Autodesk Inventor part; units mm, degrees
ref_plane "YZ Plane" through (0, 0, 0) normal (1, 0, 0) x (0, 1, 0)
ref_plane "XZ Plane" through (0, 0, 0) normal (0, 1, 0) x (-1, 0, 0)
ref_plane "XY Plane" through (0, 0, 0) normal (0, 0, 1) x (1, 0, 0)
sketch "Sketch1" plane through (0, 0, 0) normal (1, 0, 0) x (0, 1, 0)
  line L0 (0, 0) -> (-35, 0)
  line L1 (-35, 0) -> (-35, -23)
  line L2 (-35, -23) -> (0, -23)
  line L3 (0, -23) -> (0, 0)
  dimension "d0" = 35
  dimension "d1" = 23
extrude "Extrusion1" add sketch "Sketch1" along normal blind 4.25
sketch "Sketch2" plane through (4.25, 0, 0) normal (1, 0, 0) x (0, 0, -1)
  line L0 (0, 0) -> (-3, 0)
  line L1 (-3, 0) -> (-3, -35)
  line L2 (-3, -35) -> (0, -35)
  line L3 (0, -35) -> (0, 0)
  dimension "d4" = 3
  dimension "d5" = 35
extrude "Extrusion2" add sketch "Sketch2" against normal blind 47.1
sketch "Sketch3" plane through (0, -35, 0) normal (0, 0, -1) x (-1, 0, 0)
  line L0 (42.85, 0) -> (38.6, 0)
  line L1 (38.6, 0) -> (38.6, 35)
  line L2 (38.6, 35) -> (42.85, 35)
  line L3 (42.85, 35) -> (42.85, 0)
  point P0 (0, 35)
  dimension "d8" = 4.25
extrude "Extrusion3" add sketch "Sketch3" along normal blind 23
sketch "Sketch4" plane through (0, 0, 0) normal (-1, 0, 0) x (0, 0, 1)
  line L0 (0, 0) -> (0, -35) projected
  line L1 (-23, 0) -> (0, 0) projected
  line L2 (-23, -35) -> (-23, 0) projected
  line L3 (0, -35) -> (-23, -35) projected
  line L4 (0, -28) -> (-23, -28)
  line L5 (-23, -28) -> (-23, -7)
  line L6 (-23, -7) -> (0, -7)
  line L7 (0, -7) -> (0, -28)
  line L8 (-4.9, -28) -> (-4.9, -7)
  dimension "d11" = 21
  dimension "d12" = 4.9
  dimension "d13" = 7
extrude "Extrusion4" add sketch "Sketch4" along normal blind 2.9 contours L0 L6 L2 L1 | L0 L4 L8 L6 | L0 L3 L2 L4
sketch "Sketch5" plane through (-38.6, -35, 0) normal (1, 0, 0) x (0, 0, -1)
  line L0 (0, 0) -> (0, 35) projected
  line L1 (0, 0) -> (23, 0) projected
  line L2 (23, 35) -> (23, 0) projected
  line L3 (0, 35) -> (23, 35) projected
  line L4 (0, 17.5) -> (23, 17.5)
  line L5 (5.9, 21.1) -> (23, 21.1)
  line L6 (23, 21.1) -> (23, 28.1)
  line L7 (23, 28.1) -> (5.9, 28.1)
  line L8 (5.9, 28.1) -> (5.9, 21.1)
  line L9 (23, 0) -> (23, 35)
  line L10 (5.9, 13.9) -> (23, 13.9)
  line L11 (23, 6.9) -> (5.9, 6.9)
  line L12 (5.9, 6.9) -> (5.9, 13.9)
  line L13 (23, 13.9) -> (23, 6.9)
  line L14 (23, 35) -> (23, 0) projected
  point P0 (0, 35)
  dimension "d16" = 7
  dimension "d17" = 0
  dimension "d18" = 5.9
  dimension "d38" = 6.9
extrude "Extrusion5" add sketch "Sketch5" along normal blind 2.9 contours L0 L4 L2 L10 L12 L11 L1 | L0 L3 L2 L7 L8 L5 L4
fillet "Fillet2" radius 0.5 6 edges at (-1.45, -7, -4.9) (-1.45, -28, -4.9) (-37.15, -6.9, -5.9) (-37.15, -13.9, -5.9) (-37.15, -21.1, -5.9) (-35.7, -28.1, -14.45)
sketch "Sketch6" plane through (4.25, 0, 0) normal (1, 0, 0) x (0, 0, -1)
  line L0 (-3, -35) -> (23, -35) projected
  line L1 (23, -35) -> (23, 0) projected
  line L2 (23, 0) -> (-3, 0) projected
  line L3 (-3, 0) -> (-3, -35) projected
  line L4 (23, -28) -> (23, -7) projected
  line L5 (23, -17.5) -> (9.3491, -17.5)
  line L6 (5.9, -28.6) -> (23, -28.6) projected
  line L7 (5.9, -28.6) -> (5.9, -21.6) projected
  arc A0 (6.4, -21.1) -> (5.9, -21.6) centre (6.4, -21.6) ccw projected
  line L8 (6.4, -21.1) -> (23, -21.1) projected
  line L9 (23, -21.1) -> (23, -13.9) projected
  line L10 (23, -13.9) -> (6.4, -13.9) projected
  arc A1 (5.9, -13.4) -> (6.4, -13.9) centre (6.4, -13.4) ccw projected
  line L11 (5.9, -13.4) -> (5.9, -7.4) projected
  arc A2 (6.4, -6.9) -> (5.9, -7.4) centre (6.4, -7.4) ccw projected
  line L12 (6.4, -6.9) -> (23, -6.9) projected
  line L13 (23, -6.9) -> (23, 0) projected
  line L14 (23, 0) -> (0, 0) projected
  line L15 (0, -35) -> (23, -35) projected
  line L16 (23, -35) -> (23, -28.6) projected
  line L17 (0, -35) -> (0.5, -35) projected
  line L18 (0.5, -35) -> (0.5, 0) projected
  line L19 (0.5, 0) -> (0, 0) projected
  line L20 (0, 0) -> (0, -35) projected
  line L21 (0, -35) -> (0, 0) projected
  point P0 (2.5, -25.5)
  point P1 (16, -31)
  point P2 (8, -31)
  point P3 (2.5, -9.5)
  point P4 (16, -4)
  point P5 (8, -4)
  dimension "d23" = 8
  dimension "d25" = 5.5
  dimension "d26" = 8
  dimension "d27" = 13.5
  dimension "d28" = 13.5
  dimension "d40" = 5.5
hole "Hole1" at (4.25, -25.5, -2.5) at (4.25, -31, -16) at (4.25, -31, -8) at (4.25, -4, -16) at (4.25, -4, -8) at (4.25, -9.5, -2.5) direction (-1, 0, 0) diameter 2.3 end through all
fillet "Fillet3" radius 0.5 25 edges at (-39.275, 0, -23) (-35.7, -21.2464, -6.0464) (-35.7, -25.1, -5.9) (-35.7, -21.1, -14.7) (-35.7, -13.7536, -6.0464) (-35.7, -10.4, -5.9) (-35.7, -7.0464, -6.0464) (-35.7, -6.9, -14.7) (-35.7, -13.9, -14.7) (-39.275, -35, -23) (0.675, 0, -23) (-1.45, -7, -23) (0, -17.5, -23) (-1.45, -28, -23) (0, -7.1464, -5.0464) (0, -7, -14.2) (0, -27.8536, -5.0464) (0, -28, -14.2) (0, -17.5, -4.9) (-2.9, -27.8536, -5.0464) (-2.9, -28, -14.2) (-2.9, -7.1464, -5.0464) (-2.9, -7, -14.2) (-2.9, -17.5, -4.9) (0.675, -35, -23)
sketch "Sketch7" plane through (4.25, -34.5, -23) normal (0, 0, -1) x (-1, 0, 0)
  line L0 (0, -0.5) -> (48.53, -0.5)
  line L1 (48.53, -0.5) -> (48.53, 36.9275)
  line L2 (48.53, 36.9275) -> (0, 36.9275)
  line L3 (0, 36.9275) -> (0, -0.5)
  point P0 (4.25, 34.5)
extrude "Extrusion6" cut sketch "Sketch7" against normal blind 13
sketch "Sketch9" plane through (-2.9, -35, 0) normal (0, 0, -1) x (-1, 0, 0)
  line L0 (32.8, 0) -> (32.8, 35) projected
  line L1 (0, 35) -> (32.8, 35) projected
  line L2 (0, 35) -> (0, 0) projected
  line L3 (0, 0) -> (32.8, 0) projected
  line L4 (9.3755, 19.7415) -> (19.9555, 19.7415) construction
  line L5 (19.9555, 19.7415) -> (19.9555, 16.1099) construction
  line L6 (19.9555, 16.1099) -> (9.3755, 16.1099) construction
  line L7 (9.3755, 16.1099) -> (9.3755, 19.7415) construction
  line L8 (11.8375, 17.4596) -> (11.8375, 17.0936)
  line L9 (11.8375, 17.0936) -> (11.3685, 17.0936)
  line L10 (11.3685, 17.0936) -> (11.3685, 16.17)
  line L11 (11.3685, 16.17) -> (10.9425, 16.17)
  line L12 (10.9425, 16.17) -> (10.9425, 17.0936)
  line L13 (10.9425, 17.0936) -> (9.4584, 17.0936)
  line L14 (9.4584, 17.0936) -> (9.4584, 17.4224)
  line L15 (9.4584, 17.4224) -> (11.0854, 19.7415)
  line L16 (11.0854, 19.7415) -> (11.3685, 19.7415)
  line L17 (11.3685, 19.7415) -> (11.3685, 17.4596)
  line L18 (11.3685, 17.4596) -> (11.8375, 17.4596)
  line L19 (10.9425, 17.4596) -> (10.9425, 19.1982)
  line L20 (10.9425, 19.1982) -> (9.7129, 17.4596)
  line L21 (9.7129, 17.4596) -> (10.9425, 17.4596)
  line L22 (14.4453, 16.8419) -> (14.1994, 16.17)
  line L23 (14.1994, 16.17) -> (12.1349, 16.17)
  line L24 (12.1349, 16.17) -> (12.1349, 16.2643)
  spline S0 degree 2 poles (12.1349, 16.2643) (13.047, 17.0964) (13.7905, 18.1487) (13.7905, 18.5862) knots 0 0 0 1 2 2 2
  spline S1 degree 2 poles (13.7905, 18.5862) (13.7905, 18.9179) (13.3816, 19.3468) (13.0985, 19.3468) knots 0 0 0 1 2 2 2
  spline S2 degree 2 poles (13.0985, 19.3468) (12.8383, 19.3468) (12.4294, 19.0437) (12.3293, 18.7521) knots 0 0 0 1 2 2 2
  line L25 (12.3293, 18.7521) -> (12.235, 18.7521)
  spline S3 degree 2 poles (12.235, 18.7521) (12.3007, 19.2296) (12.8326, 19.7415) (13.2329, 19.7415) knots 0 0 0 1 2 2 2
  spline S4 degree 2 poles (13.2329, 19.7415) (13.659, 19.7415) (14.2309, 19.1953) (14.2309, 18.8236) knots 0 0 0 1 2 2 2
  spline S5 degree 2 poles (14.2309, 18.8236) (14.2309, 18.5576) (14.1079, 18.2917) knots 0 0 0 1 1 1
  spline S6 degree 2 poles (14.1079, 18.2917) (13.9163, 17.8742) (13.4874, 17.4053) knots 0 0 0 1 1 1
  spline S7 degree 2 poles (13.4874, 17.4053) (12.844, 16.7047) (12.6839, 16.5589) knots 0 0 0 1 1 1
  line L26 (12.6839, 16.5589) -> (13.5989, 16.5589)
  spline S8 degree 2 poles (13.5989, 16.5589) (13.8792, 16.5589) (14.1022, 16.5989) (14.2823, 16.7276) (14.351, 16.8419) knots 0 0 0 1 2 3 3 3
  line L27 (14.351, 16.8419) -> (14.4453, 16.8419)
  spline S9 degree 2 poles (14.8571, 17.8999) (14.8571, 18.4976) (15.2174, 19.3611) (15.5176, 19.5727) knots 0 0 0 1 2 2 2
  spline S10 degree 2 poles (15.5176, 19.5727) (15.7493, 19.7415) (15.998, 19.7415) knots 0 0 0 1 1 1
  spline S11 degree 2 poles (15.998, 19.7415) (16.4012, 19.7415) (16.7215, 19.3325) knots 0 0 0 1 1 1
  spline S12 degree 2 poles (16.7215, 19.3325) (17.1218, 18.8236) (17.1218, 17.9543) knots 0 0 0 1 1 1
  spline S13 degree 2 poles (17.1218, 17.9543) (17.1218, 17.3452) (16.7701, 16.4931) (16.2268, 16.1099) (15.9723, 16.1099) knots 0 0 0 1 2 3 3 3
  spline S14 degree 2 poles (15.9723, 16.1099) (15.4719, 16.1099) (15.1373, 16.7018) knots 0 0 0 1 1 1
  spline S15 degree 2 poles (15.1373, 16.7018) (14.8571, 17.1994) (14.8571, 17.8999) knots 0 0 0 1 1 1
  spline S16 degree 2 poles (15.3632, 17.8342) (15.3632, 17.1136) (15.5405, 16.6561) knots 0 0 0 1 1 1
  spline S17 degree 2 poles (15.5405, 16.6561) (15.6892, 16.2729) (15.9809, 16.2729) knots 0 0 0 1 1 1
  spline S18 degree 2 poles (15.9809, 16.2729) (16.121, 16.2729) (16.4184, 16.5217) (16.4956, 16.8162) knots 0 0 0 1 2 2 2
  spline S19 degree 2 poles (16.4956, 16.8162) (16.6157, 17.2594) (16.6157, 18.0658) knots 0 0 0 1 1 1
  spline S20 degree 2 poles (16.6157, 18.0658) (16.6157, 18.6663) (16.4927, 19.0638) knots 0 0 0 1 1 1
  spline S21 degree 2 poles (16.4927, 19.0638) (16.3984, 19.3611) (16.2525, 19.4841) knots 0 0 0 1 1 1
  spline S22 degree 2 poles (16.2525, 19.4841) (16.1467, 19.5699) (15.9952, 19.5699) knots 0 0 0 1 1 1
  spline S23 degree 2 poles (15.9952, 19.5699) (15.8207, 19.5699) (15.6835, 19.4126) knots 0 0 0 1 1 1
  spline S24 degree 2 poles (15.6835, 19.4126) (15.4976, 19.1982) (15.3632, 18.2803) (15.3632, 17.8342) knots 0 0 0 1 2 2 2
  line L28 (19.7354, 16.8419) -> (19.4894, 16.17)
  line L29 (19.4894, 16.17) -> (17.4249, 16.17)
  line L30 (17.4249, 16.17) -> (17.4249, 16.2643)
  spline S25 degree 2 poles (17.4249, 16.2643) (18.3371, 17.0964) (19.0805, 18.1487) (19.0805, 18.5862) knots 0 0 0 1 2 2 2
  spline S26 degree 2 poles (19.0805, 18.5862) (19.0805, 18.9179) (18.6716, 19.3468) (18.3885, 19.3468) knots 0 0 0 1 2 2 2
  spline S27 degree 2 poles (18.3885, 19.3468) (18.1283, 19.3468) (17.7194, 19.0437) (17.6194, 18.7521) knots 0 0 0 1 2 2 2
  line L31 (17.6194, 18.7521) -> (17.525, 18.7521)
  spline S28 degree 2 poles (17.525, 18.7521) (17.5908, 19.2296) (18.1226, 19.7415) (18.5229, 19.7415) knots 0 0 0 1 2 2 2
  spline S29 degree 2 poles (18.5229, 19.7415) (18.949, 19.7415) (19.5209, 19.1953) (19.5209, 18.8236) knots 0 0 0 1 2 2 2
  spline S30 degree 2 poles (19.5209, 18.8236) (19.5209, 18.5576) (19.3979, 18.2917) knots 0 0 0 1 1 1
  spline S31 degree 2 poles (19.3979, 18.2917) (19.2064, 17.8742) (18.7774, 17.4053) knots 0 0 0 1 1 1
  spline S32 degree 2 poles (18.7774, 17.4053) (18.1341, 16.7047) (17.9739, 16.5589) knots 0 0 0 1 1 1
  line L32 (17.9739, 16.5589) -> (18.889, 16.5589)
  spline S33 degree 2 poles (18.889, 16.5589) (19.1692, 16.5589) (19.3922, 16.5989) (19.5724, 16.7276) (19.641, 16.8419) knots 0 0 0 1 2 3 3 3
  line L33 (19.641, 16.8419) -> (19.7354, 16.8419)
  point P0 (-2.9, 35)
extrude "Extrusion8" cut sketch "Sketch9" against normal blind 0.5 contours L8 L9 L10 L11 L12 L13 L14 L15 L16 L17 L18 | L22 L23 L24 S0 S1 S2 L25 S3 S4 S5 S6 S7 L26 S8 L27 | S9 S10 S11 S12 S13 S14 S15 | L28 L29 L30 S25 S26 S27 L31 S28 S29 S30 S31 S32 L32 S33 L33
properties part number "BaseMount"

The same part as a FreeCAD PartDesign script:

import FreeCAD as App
import Part
import Sketcher


def edges_at(feature, points):
    """Names of the edges that pass closest to the given points."""
    edges = feature.Shape.Edges
    near = lambda p: min(range(len(edges)), key=lambda i: edges[i].distToShape(Part.Vertex(*p))[0])
    return sorted({f"Edge{near(p) + 1}" for p in points})

doc = App.newDocument("Part")
body = doc.addObject("PartDesign::Body", "Body")

# Sketch on YZ plane
sketch1 = body.newObject("Sketcher::SketchObject", "Sketch")
sketch1.AttachmentSupport = (doc.getObject("YZ_Plane"), [""])
sketch1.MapMode = "FlatFace"
sketch1.addGeometry(Part.LineSegment(App.Vector(0, -23, 0), App.Vector(0, 0, 0)), False)
sketch1.addGeometry(Part.LineSegment(App.Vector(0, 0, 0), App.Vector(-35, 0, 0)), False)
sketch1.addGeometry(Part.LineSegment(App.Vector(-35, 0, 0), App.Vector(-35, -23, 0)), False)
sketch1.addGeometry(Part.LineSegment(App.Vector(-35, -23, 0), App.Vector(0, -23, 0)), False)
sketch1.addConstraint(Sketcher.Constraint("Coincident", 0, 2, 1, 1))
sketch1.addConstraint(Sketcher.Constraint("Coincident", 1, 2, 2, 1))
sketch1.addConstraint(Sketcher.Constraint("Coincident", 2, 2, 3, 1))
sketch1.addConstraint(Sketcher.Constraint("Coincident", 3, 2, 0, 1))
sketch1.addConstraint(Sketcher.Constraint("Vertical", 0))
sketch1.addConstraint(Sketcher.Constraint("Horizontal", 1))
sketch1.addConstraint(Sketcher.Constraint("Vertical", 2))
sketch1.addConstraint(Sketcher.Constraint("Horizontal", 3))
sketch1.addConstraint(Sketcher.Constraint("Coincident", 0, 2, -1, 1))
sketch1.addConstraint(Sketcher.Constraint("DistanceX", 1, 2, 1, 1, 35.0))
sketch1.addConstraint(Sketcher.Constraint("DistanceY", 0, 1, 0, 2, 23.0))
pad1 = body.newObject("PartDesign::Pad", "Pad")
pad1.Profile = sketch1
pad1.Length = 4.25

# Sketch on YZ plane
sketch2 = body.newObject("Sketcher::SketchObject", "Sketch001")
sketch2.AttachmentSupport = (doc.getObject("YZ_Plane"), [""])
sketch2.MapMode = "FlatFace"
sketch2.AttachmentOffset = App.Placement(App.Vector(0, 0, 4.25), App.Rotation())
sketch2.addGeometry(Part.LineSegment(App.Vector(-35, 0, 0), App.Vector(0, 0, 0)), False)
sketch2.addGeometry(Part.LineSegment(App.Vector(0, 0, 0), App.Vector(0, 3, 0)), False)
sketch2.addGeometry(Part.LineSegment(App.Vector(0, 3, 0), App.Vector(-35, 3, 0)), False)
sketch2.addGeometry(Part.LineSegment(App.Vector(-35, 3, 0), App.Vector(-35, 0, 0)), False)
sketch2.addConstraint(Sketcher.Constraint("Coincident", 0, 2, 1, 1))
sketch2.addConstraint(Sketcher.Constraint("Coincident", 1, 2, 2, 1))
sketch2.addConstraint(Sketcher.Constraint("Coincident", 2, 2, 3, 1))
sketch2.addConstraint(Sketcher.Constraint("Coincident", 3, 2, 0, 1))
sketch2.addConstraint(Sketcher.Constraint("Horizontal", 0))
sketch2.addConstraint(Sketcher.Constraint("Vertical", 1))
sketch2.addConstraint(Sketcher.Constraint("Horizontal", 2))
sketch2.addConstraint(Sketcher.Constraint("Vertical", 3))
sketch2.addConstraint(Sketcher.Constraint("Coincident", 0, 2, -1, 1))
sketch2.addConstraint(Sketcher.Constraint("DistanceX", 0, 1, 0, 2, 35.0))
sketch2.addConstraint(Sketcher.Constraint("DistanceY", 1, 1, 1, 2, 3.0))
pad2 = body.newObject("PartDesign::Pad", "Pad001")
pad2.Profile = sketch2
pad2.Length = 47.1
pad2.Reversed = True

# Sketch on XY plane
sketch3 = body.newObject("Sketcher::SketchObject", "Sketch002")
sketch3.AttachmentSupport = (doc.getObject("XY_Plane"), [""])
sketch3.MapMode = "FlatFace"
sketch3.addGeometry(Part.LineSegment(App.Vector(-38.6, -35, 0), App.Vector(-42.9, -35, 0)), False)
sketch3.addGeometry(Part.LineSegment(App.Vector(-42.9, -35, 0), App.Vector(-42.9, 0, 0)), False)
sketch3.addGeometry(Part.LineSegment(App.Vector(-42.9, 0, 0), App.Vector(-38.6, 0, 0)), False)
sketch3.addGeometry(Part.LineSegment(App.Vector(-38.6, 0, 0), App.Vector(-38.6, -35, 0)), False)
sketch3.addConstraint(Sketcher.Constraint("Coincident", 0, 2, 1, 1))
sketch3.addConstraint(Sketcher.Constraint("Coincident", 1, 2, 2, 1))
sketch3.addConstraint(Sketcher.Constraint("Coincident", 2, 2, 3, 1))
sketch3.addConstraint(Sketcher.Constraint("Coincident", 3, 2, 0, 1))
sketch3.addConstraint(Sketcher.Constraint("Horizontal", 0))
sketch3.addConstraint(Sketcher.Constraint("Vertical", 1))
sketch3.addConstraint(Sketcher.Constraint("Horizontal", 2))
sketch3.addConstraint(Sketcher.Constraint("Vertical", 3))
sketch3.addConstraint(Sketcher.Constraint("PointOnObject", 1, 2, -1))
sketch3.addConstraint(Sketcher.Constraint("DistanceX", 0, 2, 0, 1, 4.25))
sketch3.addConstraint(Sketcher.Constraint("DistanceY", 1, 1, 1, 2, 35.0))
sketch3.addConstraint(Sketcher.Constraint("DistanceX", 2, 2, -1, 1, 38.6))
pad3 = body.newObject("PartDesign::Pad", "Pad002")
pad3.Profile = sketch3
pad3.Length = 23
pad3.Reversed = True

# Sketch on YZ plane
sketch4 = body.newObject("Sketcher::SketchObject", "Sketch003")
sketch4.AttachmentSupport = (doc.getObject("YZ_Plane"), [""])
sketch4.MapMode = "FlatFace"
sketch4.addGeometry(Part.LineSegment(App.Vector(0, 0, 0), App.Vector(0, -23, 0)), False)
sketch4.addGeometry(Part.LineSegment(App.Vector(0, -23, 0), App.Vector(-7, -23, 0)), False)
sketch4.addGeometry(Part.LineSegment(App.Vector(-7, -23, 0), App.Vector(-7, -5, 0)), False)
sketch4.addGeometry(Part.LineSegment(App.Vector(-7, -5, 0), App.Vector(-28, -5, 0)), False)
sketch4.addGeometry(Part.LineSegment(App.Vector(-28, -5, 0), App.Vector(-28, -23, 0)), False)
sketch4.addGeometry(Part.LineSegment(App.Vector(-28, -23, 0), App.Vector(-35, -23, 0)), False)
sketch4.addGeometry(Part.LineSegment(App.Vector(-35, -23, 0), App.Vector(-35, 0, 0)), False)
sketch4.addGeometry(Part.LineSegment(App.Vector(-35, 0, 0), App.Vector(0, 0, 0)), False)
sketch4.addConstraint(Sketcher.Constraint("Coincident", 0, 2, 1, 1))
sketch4.addConstraint(Sketcher.Constraint("Coincident", 1, 2, 2, 1))
sketch4.addConstraint(Sketcher.Constraint("Coincident", 2, 2, 3, 1))
sketch4.addConstraint(Sketcher.Constraint("Coincident", 3, 2, 4, 1))
sketch4.addConstraint(Sketcher.Constraint("Coincident", 4, 2, 5, 1))
sketch4.addConstraint(Sketcher.Constraint("Coincident", 5, 2, 6, 1))
sketch4.addConstraint(Sketcher.Constraint("Coincident", 6, 2, 7, 1))
sketch4.addConstraint(Sketcher.Constraint("Coincident", 7, 2, 0, 1))
sketch4.addConstraint(Sketcher.Constraint("Vertical", 0))
sketch4.addConstraint(Sketcher.Constraint("Horizontal", 1))
sketch4.addConstraint(Sketcher.Constraint("Vertical", 2))
sketch4.addConstraint(Sketcher.Constraint("Horizontal", 3))
sketch4.addConstraint(Sketcher.Constraint("Vertical", 4))
sketch4.addConstraint(Sketcher.Constraint("Horizontal", 5))
sketch4.addConstraint(Sketcher.Constraint("Vertical", 6))
sketch4.addConstraint(Sketcher.Constraint("Horizontal", 7))
sketch4.addConstraint(Sketcher.Constraint("Coincident", 7, 2, -1, 1))
sketch4.addConstraint(Sketcher.Constraint("Horizontal", 1, 2, 4, 2))
sketch4.addConstraint(Sketcher.Constraint("Equal", 1, 5))
sketch4.addConstraint(Sketcher.Constraint("DistanceX", 1, 2, 1, 1, 7.0))
sketch4.addConstraint(Sketcher.Constraint("DistanceX", 3, 2, 3, 1, 21.0))
sketch4.addConstraint(Sketcher.Constraint("DistanceY", 2, 2, -1, 1, 4.9))
sketch4.addConstraint(Sketcher.Constraint("DistanceY", 0, 2, 0, 1, 23.0))
pad4 = body.newObject("PartDesign::Pad", "Pad003")
pad4.Profile = sketch4
pad4.Length = 2.9
pad4.Reversed = True

# Sketch on YZ plane
sketch5 = body.newObject("Sketcher::SketchObject", "Sketch004")
sketch5.AttachmentSupport = (doc.getObject("YZ_Plane"), [""])
sketch5.MapMode = "FlatFace"
sketch5.AttachmentOffset = App.Placement(App.Vector(0, 0, -38.6), App.Rotation())
sketch5.addGeometry(Part.LineSegment(App.Vector(-35, 0, 0), App.Vector(-35, -23, 0)), False)
sketch5.addGeometry(Part.LineSegment(App.Vector(-35, -23, 0), App.Vector(-28, -23, 0)), False)
sketch5.addGeometry(Part.LineSegment(App.Vector(-28, -23, 0), App.Vector(-28, -6, 0)), False)
sketch5.addGeometry(Part.LineSegment(App.Vector(-28, -6, 0), App.Vector(-21, -6, 0)), False)
sketch5.addGeometry(Part.LineSegment(App.Vector(-21, -6, 0), App.Vector(-21, -23, 0)), False)
sketch5.addGeometry(Part.LineSegment(App.Vector(-21, -23, 0), App.Vector(-14, -23, 0)), False)
sketch5.addGeometry(Part.LineSegment(App.Vector(-14, -23, 0), App.Vector(-14, -6, 0)), False)
sketch5.addGeometry(Part.LineSegment(App.Vector(-14, -6, 0), App.Vector(-7, -6, 0)), False)
sketch5.addGeometry(Part.LineSegment(App.Vector(-7, -6, 0), App.Vector(-7, -23, 0)), False)
sketch5.addGeometry(Part.LineSegment(App.Vector(-7, -23, 0), App.Vector(0, -23, 0)), False)
sketch5.addGeometry(Part.LineSegment(App.Vector(0, -23, 0), App.Vector(0, 0, 0)), False)
sketch5.addGeometry(Part.LineSegment(App.Vector(0, 0, 0), App.Vector(-35, 0, 0)), False)
sketch5.addConstraint(Sketcher.Constraint("Coincident", 0, 2, 1, 1))
sketch5.addConstraint(Sketcher.Constraint("Coincident", 1, 2, 2, 1))
sketch5.addConstraint(Sketcher.Constraint("Coincident", 2, 2, 3, 1))
sketch5.addConstraint(Sketcher.Constraint("Coincident", 3, 2, 4, 1))
sketch5.addConstraint(Sketcher.Constraint("Coincident", 4, 2, 5, 1))
sketch5.addConstraint(Sketcher.Constraint("Coincident", 5, 2, 6, 1))
sketch5.addConstraint(Sketcher.Constraint("Coincident", 6, 2, 7, 1))
sketch5.addConstraint(Sketcher.Constraint("Coincident", 7, 2, 8, 1))
sketch5.addConstraint(Sketcher.Constraint("Coincident", 8, 2, 9, 1))
sketch5.addConstraint(Sketcher.Constraint("Coincident", 9, 2, 10, 1))
sketch5.addConstraint(Sketcher.Constraint("Coincident", 10, 2, 11, 1))
sketch5.addConstraint(Sketcher.Constraint("Coincident", 11, 2, 0, 1))
sketch5.addConstraint(Sketcher.Constraint("Vertical", 0))
sketch5.addConstraint(Sketcher.Constraint("Horizontal", 1))
sketch5.addConstraint(Sketcher.Constraint("Vertical", 2))
sketch5.addConstraint(Sketcher.Constraint("Horizontal", 3))
sketch5.addConstraint(Sketcher.Constraint("Vertical", 4))
sketch5.addConstraint(Sketcher.Constraint("Horizontal", 5))
sketch5.addConstraint(Sketcher.Constraint("Vertical", 6))
sketch5.addConstraint(Sketcher.Constraint("Horizontal", 7))
sketch5.addConstraint(Sketcher.Constraint("Vertical", 8))
sketch5.addConstraint(Sketcher.Constraint("Horizontal", 9))
sketch5.addConstraint(Sketcher.Constraint("Vertical", 10))
sketch5.addConstraint(Sketcher.Constraint("Horizontal", 11))
sketch5.addConstraint(Sketcher.Constraint("Coincident", 10, 2, -1, 1))
sketch5.addConstraint(Sketcher.Constraint("Horizontal", 1, 2, 4, 2))
sketch5.addConstraint(Sketcher.Constraint("Horizontal", 3, 2, 6, 2))
sketch5.addConstraint(Sketcher.Constraint("Horizontal", 5, 2, 8, 2))
sketch5.addConstraint(Sketcher.Constraint("Equal", 3, 7))
sketch5.addConstraint(Sketcher.Constraint("Equal", 1, 9))
sketch5.addConstraint(Sketcher.Constraint("DistanceX", 3, 1, 3, 2, 7.0))
sketch5.addConstraint(Sketcher.Constraint("DistanceX", 1, 1, 1, 2, 6.9))
sketch5.addConstraint(Sketcher.Constraint("DistanceY", 2, 2, -1, 1, 5.9))
sketch5.addConstraint(Sketcher.Constraint("DistanceX", 11, 2, 11, 1, 35.0))
sketch5.addConstraint(Sketcher.Constraint("DistanceY", 0, 2, 0, 1, 23.0))
pad5 = body.newObject("PartDesign::Pad", "Pad004")
pad5.Profile = sketch5
pad5.Length = 2.9
doc.recompute()

fillet = body.newObject("PartDesign::Fillet", "Fillet")
fillet.Base = (pad5, edges_at(pad5, [
    (-1.45, -7, -4.9),
    (-1.45, -28, -4.9),
    (-37.15, -6.9, -5.9),
    (-37.15, -13.9, -5.9),
    (-37.15, -21.1, -5.9),
    (-35.7, -28.1, -14.45),
]))
fillet.Radius = 0.5

# Sketch on YZ plane
sketch6 = body.newObject("Sketcher::SketchObject", "Sketch005")
sketch6.AttachmentSupport = (doc.getObject("YZ_Plane"), [""])
sketch6.MapMode = "FlatFace"
sketch6.AttachmentOffset = App.Placement(App.Vector(0, 0, 4.25), App.Rotation())
sketch6.addGeometry(Part.Circle(App.Vector(-25.5, -2.5, 0), App.Vector(0, 0, 1), 1.1), False)
sketch6.addGeometry(Part.Circle(App.Vector(-31, -16, 0), App.Vector(0, 0, 1), 1.1), False)
sketch6.addGeometry(Part.Circle(App.Vector(-31, -8, 0), App.Vector(0, 0, 1), 1.1), False)
sketch6.addGeometry(Part.Circle(App.Vector(-4, -16, 0), App.Vector(0, 0, 1), 1.1), False)
sketch6.addGeometry(Part.Circle(App.Vector(-4, -8, 0), App.Vector(0, 0, 1), 1.1), False)
sketch6.addGeometry(Part.Circle(App.Vector(-9.5, -2.5, 0), App.Vector(0, 0, 1), 1.1), False)
sketch6.addConstraint(Sketcher.Constraint("Equal", 0, 1))
sketch6.addConstraint(Sketcher.Constraint("Equal", 1, 2))
sketch6.addConstraint(Sketcher.Constraint("Equal", 2, 3))
sketch6.addConstraint(Sketcher.Constraint("Equal", 3, 4))
sketch6.addConstraint(Sketcher.Constraint("Equal", 4, 5))
sketch6.addConstraint(Sketcher.Constraint("Horizontal", 1, 3, 3, 3))
sketch6.addConstraint(Sketcher.Constraint("Horizontal", 2, 3, 4, 3))
sketch6.addConstraint(Sketcher.Constraint("Horizontal", 0, 3, 5, 3))
sketch6.addConstraint(Sketcher.Constraint("Vertical", 1, 3, 2, 3))
sketch6.addConstraint(Sketcher.Constraint("Vertical", 3, 3, 4, 3))
sketch6.addConstraint(Sketcher.Constraint("Diameter", 0, 2.3))
sketch6.addConstraint(Sketcher.Constraint("DistanceX", 1, 3, -1, 1, 31.0))
sketch6.addConstraint(Sketcher.Constraint("DistanceY", 1, 3, -1, 1, 16.0))
sketch6.addConstraint(Sketcher.Constraint("DistanceY", 2, 3, -1, 1, 8.0))
sketch6.addConstraint(Sketcher.Constraint("DistanceX", 3, 3, -1, 1, 4.0))
sketch6.addConstraint(Sketcher.Constraint("DistanceX", 0, 3, 5, 3, 16.0))
sketch6.addConstraint(Sketcher.Constraint("DistanceX", 0, 3, -1, 1, 25.5))
sketch6.addConstraint(Sketcher.Constraint("DistanceY", 0, 3, -1, 1, 2.5))
doc.recompute()
hole = body.newObject("PartDesign::Hole", "Hole")
hole.Profile = sketch6
hole.ThreadType = "None"
hole.Diameter = 2.3
hole.DepthType = "ThroughAll"
doc.recompute()

fillet2 = body.newObject("PartDesign::Fillet", "Fillet001")
fillet2.Base = (hole, edges_at(hole, [
    (-39.275, 0, -23),
    (-35.7, -21.246, -6.046),
    (-35.7, -25.1, -5.9),
    (-35.7, -21.1, -14.7),
    (-35.7, -13.754, -6.046),
    (-35.7, -10.4, -5.9),
    (-35.7, -7.046, -6.046),
    (-35.7, -6.9, -14.7),
    (-35.7, -13.9, -14.7),
    (-39.275, -35, -23),
    (0.675, 0, -23),
    (-1.45, -7, -23),
    (0, -17.5, -23),
    (-1.45, -28, -23),
    (0, -7.146, -5.046),
    (0, -7, -14.2),
    (0, -27.854, -5.046),
    (0, -28, -14.2),
    (0, -17.5, -4.9),
    (-2.9, -27.854, -5.046),
    (-2.9, -28, -14.2),
    (-2.9, -7.146, -5.046),
    (-2.9, -7, -14.2),
    (-2.9, -17.5, -4.9),
    (0.675, -35, -23),
]))
fillet2.Radius = 0.5

# Sketch on XY plane
sketch7 = body.newObject("Sketcher::SketchObject", "Sketch006")
sketch7.AttachmentSupport = (doc.getObject("XY_Plane"), [""])
sketch7.MapMode = "FlatFace"
sketch7.AttachmentOffset = App.Placement(App.Vector(0, 0, -23), App.Rotation())
sketch7.addGeometry(Part.LineSegment(App.Vector(4, 2, 0), App.Vector(4, -35, 0)), False)
sketch7.addGeometry(Part.LineSegment(App.Vector(4, -35, 0), App.Vector(-44, -35, 0)), False)
sketch7.addGeometry(Part.LineSegment(App.Vector(-44, -35, 0), App.Vector(-44, 2, 0)), False)
sketch7.addGeometry(Part.LineSegment(App.Vector(-44, 2, 0), App.Vector(4, 2, 0)), False)
sketch7.addConstraint(Sketcher.Constraint("Coincident", 0, 2, 1, 1))
sketch7.addConstraint(Sketcher.Constraint("Coincident", 1, 2, 2, 1))
sketch7.addConstraint(Sketcher.Constraint("Coincident", 2, 2, 3, 1))
sketch7.addConstraint(Sketcher.Constraint("Coincident", 3, 2, 0, 1))
sketch7.addConstraint(Sketcher.Constraint("Vertical", 0))
sketch7.addConstraint(Sketcher.Constraint("Horizontal", 1))
sketch7.addConstraint(Sketcher.Constraint("Vertical", 2))
sketch7.addConstraint(Sketcher.Constraint("Horizontal", 3))
sketch7.addConstraint(Sketcher.Constraint("DistanceY", 0, 2, -1, 1, 35.0))
sketch7.addConstraint(Sketcher.Constraint("DistanceX", 1, 2, 1, 1, 48.53))
sketch7.addConstraint(Sketcher.Constraint("DistanceX", -1, 1, 0, 2, 4.25))
sketch7.addConstraint(Sketcher.Constraint("DistanceY", 0, 2, 0, 1, 37.4275))
pocket1 = body.newObject("PartDesign::Pocket", "Pocket")
pocket1.Profile = sketch7
pocket1.Length = 13
pocket1.Reversed = True

# Sketch on XY plane
sketch8 = body.newObject("Sketcher::SketchObject", "Sketch007")
sketch8.AttachmentSupport = (doc.getObject("XY_Plane"), [""])
sketch8.MapMode = "FlatFace"
sketch8.addGeometry(Part.LineSegment(App.Vector(-14.7375, -17.9064, 0), App.Vector(-14.7375, -17.5404, 0)), False)
sketch8.addGeometry(Part.LineSegment(App.Vector(-14.7375, -17.5404, 0), App.Vector(-14.2685, -17.5404, 0)), False)
sketch8.addGeometry(Part.LineSegment(App.Vector(-14.2685, -17.5404, 0), App.Vector(-14.2685, -15.2585, 0)), False)
sketch8.addGeometry(Part.LineSegment(App.Vector(-14.2685, -15.2585, 0), App.Vector(-13.9854, -15.2585, 0)), False)
sketch8.addGeometry(Part.LineSegment(App.Vector(-13.9854, -15.2585, 0), App.Vector(-12.3584, -17.5776, 0)), False)
sketch8.addGeometry(Part.LineSegment(App.Vector(-12.3584, -17.5776, 0), App.Vector(-12.3584, -17.9064, 0)), False)
sketch8.addGeometry(Part.LineSegment(App.Vector(-12.3584, -17.9064, 0), App.Vector(-13.8425, -17.9064, 0)), False)
sketch8.addGeometry(Part.LineSegment(App.Vector(-13.8425, -17.9064, 0), App.Vector(-13.8425, -18.83, 0)), False)
sketch8.addGeometry(Part.LineSegment(App.Vector(-13.8425, -18.83, 0), App.Vector(-14.2685, -18.83, 0)), False)
sketch8.addGeometry(Part.LineSegment(App.Vector(-14.2685, -18.83, 0), App.Vector(-14.2685, -17.9064, 0)), False)
sketch8.addGeometry(Part.LineSegment(App.Vector(-14.2685, -17.9064, 0), App.Vector(-14.7375, -17.9064, 0)), False)
sketch8.addGeometry(Part.LineSegment(App.Vector(-13.8425, -15.8018, 0), App.Vector(-13.8425, -17.5404, 0)), False)
sketch8.addGeometry(Part.LineSegment(App.Vector(-13.8425, -17.5404, 0), App.Vector(-12.6129, -17.5404, 0)), False)
sketch8.addGeometry(Part.LineSegment(App.Vector(-12.6129, -17.5404, 0), App.Vector(-13.8425, -15.8018, 0)), False)
sketch8.addGeometry(Part.LineSegment(App.Vector(-17.0994, -18.83, 0), App.Vector(-17.3453, -18.1581, 0)), False)
sketch8.addGeometry(Part.LineSegment(App.Vector(-17.3453, -18.1581, 0), App.Vector(-17.251, -18.1581, 0)), False)
sketch8.addGeometry(Part.BSplineCurve([App.Vector(-16.4989, -18.4411, 0), App.Vector(-16.7792, -18.4411, 0), App.Vector(-17.0022, -18.4011, 0), App.Vector(-17.1823, -18.2724, 0), App.Vector(-17.251, -18.1581, 0)], [3, 1, 1, 3], [0, 1, 2, 3], False, 2, [1, 1, 1, 1, 1], False), False)
sketch8.addGeometry(Part.LineSegment(App.Vector(-16.4989, -18.4411, 0), App.Vector(-15.5839, -18.4411, 0)), False)
sketch8.addGeometry(Part.BSplineCurve([App.Vector(-16.3874, -17.5947, 0), App.Vector(-15.744, -18.2953, 0), App.Vector(-15.5839, -18.4411, 0)], [3, 3], [0, 1], False, 2, [1, 1, 1], False), False)
sketch8.addGeometry(Part.BSplineCurve([App.Vector(-17.0079, -16.7083, 0), App.Vector(-16.8163, -17.1258, 0), App.Vector(-16.3874, -17.5947, 0)], [3, 3], [0, 1], False, 2, [1, 1, 1], False), False)
sketch8.addGeometry(Part.BSplineCurve([App.Vector(-17.1309, -16.1764, 0), App.Vector(-17.1309, -16.4424, 0), App.Vector(-17.0079, -16.7083, 0)], [3, 3], [0, 1], False, 2, [1, 1, 1], False), False)
sketch8.addGeometry(Part.BSplineCurve([App.Vector(-16.1329, -15.2585, 0), App.Vector(-16.559, -15.2585, 0), App.Vector(-17.1309, -15.8047, 0), App.Vector(-17.1309, -16.1764, 0)], [3, 1, 3], [0, 1, 2], False, 2, [1, 1, 1, 1], False), False)
sketch8.addGeometry(Part.BSplineCurve([App.Vector(-15.135, -16.2479, 0), App.Vector(-15.2007, -15.7704, 0), App.Vector(-15.7326, -15.2585, 0), App.Vector(-16.1329, -15.2585, 0)], [3, 1, 3], [0, 1, 2], False, 2, [1, 1, 1, 1], False), False)
sketch8.addGeometry(Part.LineSegment(App.Vector(-15.135, -16.2479, 0), App.Vector(-15.2293, -16.2479, 0)), False)
sketch8.addGeometry(Part.BSplineCurve([App.Vector(-15.9985, -15.6532, 0), App.Vector(-15.7383, -15.6532, 0), App.Vector(-15.3294, -15.9563, 0), App.Vector(-15.2293, -16.2479, 0)], [3, 1, 3], [0, 1, 2], False, 2, [1, 1, 1, 1], False), False)
sketch8.addGeometry(Part.BSplineCurve([App.Vector(-16.6905, -16.4138, 0), App.Vector(-16.6905, -16.0821, 0), App.Vector(-16.2816, -15.6532, 0), App.Vector(-15.9985, -15.6532, 0)], [3, 1, 3], [0, 1, 2], False, 2, [1, 1, 1, 1], False), False)
sketch8.addGeometry(Part.BSplineCurve([App.Vector(-15.0349, -18.7357, 0), App.Vector(-15.947, -17.9036, 0), App.Vector(-16.6905, -16.8513, 0), App.Vector(-16.6905, -16.4138, 0)], [3, 1, 3], [0, 1, 2], False, 2, [1, 1, 1, 1], False), False)
sketch8.addGeometry(Part.LineSegment(App.Vector(-15.0349, -18.7357, 0), App.Vector(-15.0349, -18.83, 0)), False)
sketch8.addGeometry(Part.LineSegment(App.Vector(-15.0349, -18.83, 0), App.Vector(-17.0994, -18.83, 0)), False)
sketch8.addGeometry(Part.BSplineCurve([App.Vector(-17.7571, -17.1001, 0), App.Vector(-17.7571, -16.5024, 0), App.Vector(-18.1174, -15.6389, 0), App.Vector(-18.4176, -15.4273, 0)], [3, 1, 3], [0, 1, 2], False, 2, [1, 1, 1, 1], False), False)
sketch8.addGeometry(Part.BSplineCurve([App.Vector(-18.0373, -18.2982, 0), App.Vector(-17.7571, -17.8006, 0), App.Vector(-17.7571, -17.1001, 0)], [3, 3], [0, 1], False, 2, [1, 1, 1], False), False)
sketch8.addGeometry(Part.BSplineCurve([App.Vector(-18.8723, -18.8901, 0), App.Vector(-18.3719, -18.8901, 0), App.Vector(-18.0373, -18.2982, 0)], [3, 3], [0, 1], False, 2, [1, 1, 1], False), False)
sketch8.addGeometry(Part.BSplineCurve([App.Vector(-20.0218, -17.0457, 0), App.Vector(-20.0218, -17.6548, 0), App.Vector(-19.6701, -18.5069, 0), App.Vector(-19.1268, -18.8901, 0), App.Vector(-18.8723, -18.8901, 0)], [3, 1, 1, 3], [0, 1, 2, 3], False, 2, [1, 1, 1, 1, 1], False), False)
sketch8.addGeometry(Part.BSplineCurve([App.Vector(-19.6215, -15.6675, 0), App.Vector(-20.0218, -16.1764, 0), App.Vector(-20.0218, -17.0457, 0)], [3, 3], [0, 1], False, 2, [1, 1, 1], False), False)
sketch8.addGeometry(Part.BSplineCurve([App.Vector(-18.898, -15.2585, 0), App.Vector(-19.3012, -15.2585, 0), App.Vector(-19.6215, -15.6675, 0)], [3, 3], [0, 1], False, 2, [1, 1, 1], False), False)
sketch8.addGeometry(Part.BSplineCurve([App.Vector(-18.4176, -15.4273, 0), App.Vector(-18.6493, -15.2585, 0), App.Vector(-18.898, -15.2585, 0)], [3, 3], [0, 1], False, 2, [1, 1, 1], False), False)
sketch8.addGeometry(Part.BSplineCurve([App.Vector(-18.2632, -17.1658, 0), App.Vector(-18.2632, -17.8864, 0), App.Vector(-18.4405, -18.3439, 0)], [3, 3], [0, 1], False, 2, [1, 1, 1], False), False)
sketch8.addGeometry(Part.BSplineCurve([App.Vector(-18.5835, -15.5874, 0), App.Vector(-18.3976, -15.8018, 0), App.Vector(-18.2632, -16.7197, 0), App.Vector(-18.2632, -17.1658, 0)], [3, 1, 3], [0, 1, 2], False, 2, [1, 1, 1, 1], False), False)
sketch8.addGeometry(Part.BSplineCurve([App.Vector(-18.8952, -15.4301, 0), App.Vector(-18.7207, -15.4301, 0), App.Vector(-18.5835, -15.5874, 0)], [3, 3], [0, 1], False, 2, [1, 1, 1], False), False)
sketch8.addGeometry(Part.BSplineCurve([App.Vector(-19.1525, -15.5159, 0), App.Vector(-19.0467, -15.4301, 0), App.Vector(-18.8952, -15.4301, 0)], [3, 3], [0, 1], False, 2, [1, 1, 1], False), False)
sketch8.addGeometry(Part.BSplineCurve([App.Vector(-19.3927, -15.9362, 0), App.Vector(-19.2984, -15.6389, 0), App.Vector(-19.1525, -15.5159, 0)], [3, 3], [0, 1], False, 2, [1, 1, 1], False), False)
sketch8.addGeometry(Part.BSplineCurve([App.Vector(-19.5157, -16.9342, 0), App.Vector(-19.5157, -16.3337, 0), App.Vector(-19.3927, -15.9362, 0)], [3, 3], [0, 1], False, 2, [1, 1, 1], False), False)
sketch8.addGeometry(Part.BSplineCurve([App.Vector(-19.3956, -18.1838, 0), App.Vector(-19.5157, -17.7406, 0), App.Vector(-19.5157, -16.9342, 0)], [3, 3], [0, 1], False, 2, [1, 1, 1], False), False)
sketch8.addGeometry(Part.BSplineCurve([App.Vector(-18.8809, -18.7271, 0), App.Vector(-19.021, -18.7271, 0), App.Vector(-19.3184, -18.4783, 0), App.Vector(-19.3956, -18.1838, 0)], [3, 1, 3], [0, 1, 2], False, 2, [1, 1, 1, 1], False), False)
sketch8.addGeometry(Part.BSplineCurve([App.Vector(-18.4405, -18.3439, 0), App.Vector(-18.5892, -18.7271, 0), App.Vector(-18.8809, -18.7271, 0)], [3, 3], [0, 1], False, 2, [1, 1, 1], False), False)
sketch8.addGeometry(Part.LineSegment(App.Vector(-22.3894, -18.83, 0), App.Vector(-22.6354, -18.1581, 0)), False)
sketch8.addGeometry(Part.LineSegment(App.Vector(-22.6354, -18.1581, 0), App.Vector(-22.541, -18.1581, 0)), False)
sketch8.addGeometry(Part.BSplineCurve([App.Vector(-21.789, -18.4411, 0), App.Vector(-22.0692, -18.4411, 0), App.Vector(-22.2922, -18.4011, 0), App.Vector(-22.4724, -18.2724, 0), App.Vector(-22.541, -18.1581, 0)], [3, 1, 1, 3], [0, 1, 2, 3], False, 2, [1, 1, 1, 1, 1], False), False)
sketch8.addGeometry(Part.LineSegment(App.Vector(-21.789, -18.4411, 0), App.Vector(-20.8739, -18.4411, 0)), False)
sketch8.addGeometry(Part.BSplineCurve([App.Vector(-21.6774, -17.5947, 0), App.Vector(-21.0341, -18.2953, 0), App.Vector(-20.8739, -18.4411, 0)], [3, 3], [0, 1], False, 2, [1, 1, 1], False), False)
sketch8.addGeometry(Part.BSplineCurve([App.Vector(-22.2979, -16.7083, 0), App.Vector(-22.1064, -17.1258, 0), App.Vector(-21.6774, -17.5947, 0)], [3, 3], [0, 1], False, 2, [1, 1, 1], False), False)
sketch8.addGeometry(Part.BSplineCurve([App.Vector(-22.4209, -16.1764, 0), App.Vector(-22.4209, -16.4424, 0), App.Vector(-22.2979, -16.7083, 0)], [3, 3], [0, 1], False, 2, [1, 1, 1], False), False)
sketch8.addGeometry(Part.BSplineCurve([App.Vector(-21.4229, -15.2585, 0), App.Vector(-21.849, -15.2585, 0), App.Vector(-22.4209, -15.8047, 0), App.Vector(-22.4209, -16.1764, 0)], [3, 1, 3], [0, 1, 2], False, 2, [1, 1, 1, 1], False), False)
sketch8.addGeometry(Part.BSplineCurve([App.Vector(-20.425, -16.2479, 0), App.Vector(-20.4908, -15.7704, 0), App.Vector(-21.0226, -15.2585, 0), App.Vector(-21.4229, -15.2585, 0)], [3, 1, 3], [0, 1, 2], False, 2, [1, 1, 1, 1], False), False)
sketch8.addGeometry(Part.LineSegment(App.Vector(-20.425, -16.2479, 0), App.Vector(-20.5194, -16.2479, 0)), False)
sketch8.addGeometry(Part.BSplineCurve([App.Vector(-21.2885, -15.6532, 0), App.Vector(-21.0283, -15.6532, 0), App.Vector(-20.6194, -15.9563, 0), App.Vector(-20.5194, -16.2479, 0)], [3, 1, 3], [0, 1, 2], False, 2, [1, 1, 1, 1], False), False)
sketch8.addGeometry(Part.BSplineCurve([App.Vector(-21.9805, -16.4138, 0), App.Vector(-21.9805, -16.0821, 0), App.Vector(-21.5716, -15.6532, 0), App.Vector(-21.2885, -15.6532, 0)], [3, 1, 3], [0, 1, 2], False, 2, [1, 1, 1, 1], False), False)
sketch8.addGeometry(Part.BSplineCurve([App.Vector(-20.3249, -18.7357, 0), App.Vector(-21.2371, -17.9036, 0), App.Vector(-21.9805, -16.8513, 0), App.Vector(-21.9805, -16.4138, 0)], [3, 1, 3], [0, 1, 2], False, 2, [1, 1, 1, 1], False), False)
sketch8.addGeometry(Part.LineSegment(App.Vector(-20.3249, -18.7357, 0), App.Vector(-20.3249, -18.83, 0)), False)
sketch8.addGeometry(Part.LineSegment(App.Vector(-20.3249, -18.83, 0), App.Vector(-22.3894, -18.83, 0)), False)
sketch8.addConstraint(Sketcher.Constraint("Block", 16))
sketch8.addConstraint(Sketcher.Constraint("Block", 18))
sketch8.addConstraint(Sketcher.Constraint("Block", 19))
sketch8.addConstraint(Sketcher.Constraint("Block", 20))
sketch8.addConstraint(Sketcher.Constraint("Block", 21))
sketch8.addConstraint(Sketcher.Constraint("Block", 22))
sketch8.addConstraint(Sketcher.Constraint("Block", 24))
sketch8.addConstraint(Sketcher.Constraint("Block", 25))
sketch8.addConstraint(Sketcher.Constraint("Block", 26))
sketch8.addConstraint(Sketcher.Constraint("Block", 29))
sketch8.addConstraint(Sketcher.Constraint("Block", 30))
sketch8.addConstraint(Sketcher.Constraint("Block", 31))
sketch8.addConstraint(Sketcher.Constraint("Block", 32))
sketch8.addConstraint(Sketcher.Constraint("Block", 33))
sketch8.addConstraint(Sketcher.Constraint("Block", 34))
sketch8.addConstraint(Sketcher.Constraint("Block", 35))
sketch8.addConstraint(Sketcher.Constraint("Block", 36))
sketch8.addConstraint(Sketcher.Constraint("Block", 37))
sketch8.addConstraint(Sketcher.Constraint("Block", 38))
sketch8.addConstraint(Sketcher.Constraint("Block", 39))
sketch8.addConstraint(Sketcher.Constraint("Block", 40))
sketch8.addConstraint(Sketcher.Constraint("Block", 41))
sketch8.addConstraint(Sketcher.Constraint("Block", 42))
sketch8.addConstraint(Sketcher.Constraint("Block", 43))
sketch8.addConstraint(Sketcher.Constraint("Block", 44))
sketch8.addConstraint(Sketcher.Constraint("Block", 47))
sketch8.addConstraint(Sketcher.Constraint("Block", 49))
sketch8.addConstraint(Sketcher.Constraint("Block", 50))
sketch8.addConstraint(Sketcher.Constraint("Block", 51))
sketch8.addConstraint(Sketcher.Constraint("Block", 52))
sketch8.addConstraint(Sketcher.Constraint("Block", 53))
sketch8.addConstraint(Sketcher.Constraint("Block", 55))
sketch8.addConstraint(Sketcher.Constraint("Block", 56))
sketch8.addConstraint(Sketcher.Constraint("Block", 57))
sketch8.addConstraint(Sketcher.Constraint("Coincident", 0, 2, 1, 1))
sketch8.addConstraint(Sketcher.Constraint("Coincident", 1, 2, 2, 1))
sketch8.addConstraint(Sketcher.Constraint("Coincident", 2, 2, 3, 1))
sketch8.addConstraint(Sketcher.Constraint("Coincident", 3, 2, 4, 1))
sketch8.addConstraint(Sketcher.Constraint("Coincident", 4, 2, 5, 1))
sketch8.addConstraint(Sketcher.Constraint("Coincident", 5, 2, 6, 1))
sketch8.addConstraint(Sketcher.Constraint("Coincident", 6, 2, 7, 1))
sketch8.addConstraint(Sketcher.Constraint("Coincident", 7, 2, 8, 1))
sketch8.addConstraint(Sketcher.Constraint("Coincident", 8, 2, 9, 1))
sketch8.addConstraint(Sketcher.Constraint("Coincident", 9, 2, 10, 1))
sketch8.addConstraint(Sketcher.Constraint("Coincident", 10, 2, 0, 1))
sketch8.addConstraint(Sketcher.Constraint("Coincident", 11, 2, 12, 1))
sketch8.addConstraint(Sketcher.Constraint("Coincident", 12, 2, 13, 1))
sketch8.addConstraint(Sketcher.Constraint("Coincident", 13, 2, 11, 1))
sketch8.addConstraint(Sketcher.Constraint("Coincident", 14, 2, 15, 1))
sketch8.addConstraint(Sketcher.Constraint("Coincident", 15, 2, 16, 2))
sketch8.addConstraint(Sketcher.Constraint("Coincident", 16, 1, 17, 1))
sketch8.addConstraint(Sketcher.Constraint("Coincident", 17, 2, 18, 2))
sketch8.addConstraint(Sketcher.Constraint("Coincident", 22, 1, 23, 1))
sketch8.addConstraint(Sketcher.Constraint("Coincident", 23, 2, 24, 2))
sketch8.addConstraint(Sketcher.Constraint("Coincident", 26, 1, 27, 1))
sketch8.addConstraint(Sketcher.Constraint("Coincident", 27, 2, 28, 1))
sketch8.addConstraint(Sketcher.Constraint("Coincident", 28, 2, 14, 1))
sketch8.addConstraint(Sketcher.Constraint("Coincident", 45, 2, 46, 1))
sketch8.addConstraint(Sketcher.Constraint("Coincident", 46, 2, 47, 2))
sketch8.addConstraint(Sketcher.Constraint("Coincident", 47, 1, 48, 1))
sketch8.addConstraint(Sketcher.Constraint("Coincident", 48, 2, 49, 2))
sketch8.addConstraint(Sketcher.Constraint("Coincident", 53, 1, 54, 1))
sketch8.addConstraint(Sketcher.Constraint("Coincident", 54, 2, 55, 2))
sketch8.addConstraint(Sketcher.Constraint("Coincident", 57, 1, 58, 1))
sketch8.addConstraint(Sketcher.Constraint("Coincident", 58, 2, 59, 1))
sketch8.addConstraint(Sketcher.Constraint("Coincident", 59, 2, 45, 1))
sketch8.addConstraint(Sketcher.Constraint("Vertical", 0))
sketch8.addConstraint(Sketcher.Constraint("Horizontal", 1))
sketch8.addConstraint(Sketcher.Constraint("Vertical", 2))
sketch8.addConstraint(Sketcher.Constraint("Horizontal", 3))
sketch8.addConstraint(Sketcher.Constraint("Vertical", 5))
sketch8.addConstraint(Sketcher.Constraint("Horizontal", 6))
sketch8.addConstraint(Sketcher.Constraint("Vertical", 7))
sketch8.addConstraint(Sketcher.Constraint("Horizontal", 8))
sketch8.addConstraint(Sketcher.Constraint("Vertical", 9))
sketch8.addConstraint(Sketcher.Constraint("Horizontal", 10))
sketch8.addConstraint(Sketcher.Constraint("Vertical", 11))
sketch8.addConstraint(Sketcher.Constraint("Horizontal", 12))
sketch8.addConstraint(Sketcher.Constraint("Horizontal", 15))
sketch8.addConstraint(Sketcher.Constraint("Vertical", 27))
sketch8.addConstraint(Sketcher.Constraint("Horizontal", 28))
sketch8.addConstraint(Sketcher.Constraint("Horizontal", 46))
sketch8.addConstraint(Sketcher.Constraint("Vertical", 58))
sketch8.addConstraint(Sketcher.Constraint("Horizontal", 59))
sketch8.addConstraint(Sketcher.Constraint("DistanceX", 1, 1, 1, 2, 0.469))
sketch8.addConstraint(Sketcher.Constraint("DistanceX", 3, 1, 3, 2, 0.283))
sketch8.addConstraint(Sketcher.Constraint("DistanceX", 6, 2, 6, 1, 1.484))
sketch8.addConstraint(Sketcher.Constraint("DistanceX", 8, 2, 8, 1, 0.426))
sketch8.addConstraint(Sketcher.Constraint("DistanceX", 10, 2, 10, 1, 0.469))
sketch8.addConstraint(Sketcher.Constraint("DistanceY", 0, 1, 0, 2, 0.366))
sketch8.addConstraint(Sketcher.Constraint("DistanceY", 2, 1, 2, 2, 2.282))
sketch8.addConstraint(Sketcher.Constraint("DistanceY", 7, 2, -1, 1, 18.83))
sketch8.addConstraint(Sketcher.Constraint("DistanceY", 27, 2, -1, 1, 18.83))
sketch8.addConstraint(Sketcher.Constraint("DistanceY", 58, 2, -1, 1, 18.83))
sketch8.addConstraint(Sketcher.Constraint("DistanceX", 45, 2, 14, 2, 5.29))
sketch8.addConstraint(Sketcher.Constraint("DistanceX", 59, 2, 54, 2, 1.87))
sketch8.addConstraint(Sketcher.Constraint("Distance", 4, 2.833))
sketch8.addConstraint(Sketcher.Constraint("DistanceX", 12, 1, 12, 2, 1.2296))
sketch8.addConstraint(Sketcher.Constraint("DistanceX", 15, 1, 15, 2, 0.0943))
sketch8.addConstraint(Sketcher.Constraint("DistanceX", 28, 2, 28, 1, 2.0645))
sketch8.addConstraint(Sketcher.Constraint("DistanceY", 5, 2, 5, 1, 0.3288))
sketch8.addConstraint(Sketcher.Constraint("DistanceY", 7, 2, 7, 1, 0.9236))
sketch8.addConstraint(Sketcher.Constraint("DistanceY", 11, 2, 11, 1, 1.7386))
sketch8.addConstraint(Sketcher.Constraint("DistanceX", 12, 2, -1, 1, 12.613))
sketch8.addConstraint(Sketcher.Constraint("DistanceY", 6, 2, 11, 2, 0.366))
sketch8.addConstraint(Sketcher.Constraint("DistanceX", 1, 2, 11, 2, 0.426))
pocket2 = body.newObject("PartDesign::Pocket", "Pocket001")
pocket2.Profile = sketch8
pocket2.Length = 0.5
pocket2.Reversed = True

doc.recompute()
